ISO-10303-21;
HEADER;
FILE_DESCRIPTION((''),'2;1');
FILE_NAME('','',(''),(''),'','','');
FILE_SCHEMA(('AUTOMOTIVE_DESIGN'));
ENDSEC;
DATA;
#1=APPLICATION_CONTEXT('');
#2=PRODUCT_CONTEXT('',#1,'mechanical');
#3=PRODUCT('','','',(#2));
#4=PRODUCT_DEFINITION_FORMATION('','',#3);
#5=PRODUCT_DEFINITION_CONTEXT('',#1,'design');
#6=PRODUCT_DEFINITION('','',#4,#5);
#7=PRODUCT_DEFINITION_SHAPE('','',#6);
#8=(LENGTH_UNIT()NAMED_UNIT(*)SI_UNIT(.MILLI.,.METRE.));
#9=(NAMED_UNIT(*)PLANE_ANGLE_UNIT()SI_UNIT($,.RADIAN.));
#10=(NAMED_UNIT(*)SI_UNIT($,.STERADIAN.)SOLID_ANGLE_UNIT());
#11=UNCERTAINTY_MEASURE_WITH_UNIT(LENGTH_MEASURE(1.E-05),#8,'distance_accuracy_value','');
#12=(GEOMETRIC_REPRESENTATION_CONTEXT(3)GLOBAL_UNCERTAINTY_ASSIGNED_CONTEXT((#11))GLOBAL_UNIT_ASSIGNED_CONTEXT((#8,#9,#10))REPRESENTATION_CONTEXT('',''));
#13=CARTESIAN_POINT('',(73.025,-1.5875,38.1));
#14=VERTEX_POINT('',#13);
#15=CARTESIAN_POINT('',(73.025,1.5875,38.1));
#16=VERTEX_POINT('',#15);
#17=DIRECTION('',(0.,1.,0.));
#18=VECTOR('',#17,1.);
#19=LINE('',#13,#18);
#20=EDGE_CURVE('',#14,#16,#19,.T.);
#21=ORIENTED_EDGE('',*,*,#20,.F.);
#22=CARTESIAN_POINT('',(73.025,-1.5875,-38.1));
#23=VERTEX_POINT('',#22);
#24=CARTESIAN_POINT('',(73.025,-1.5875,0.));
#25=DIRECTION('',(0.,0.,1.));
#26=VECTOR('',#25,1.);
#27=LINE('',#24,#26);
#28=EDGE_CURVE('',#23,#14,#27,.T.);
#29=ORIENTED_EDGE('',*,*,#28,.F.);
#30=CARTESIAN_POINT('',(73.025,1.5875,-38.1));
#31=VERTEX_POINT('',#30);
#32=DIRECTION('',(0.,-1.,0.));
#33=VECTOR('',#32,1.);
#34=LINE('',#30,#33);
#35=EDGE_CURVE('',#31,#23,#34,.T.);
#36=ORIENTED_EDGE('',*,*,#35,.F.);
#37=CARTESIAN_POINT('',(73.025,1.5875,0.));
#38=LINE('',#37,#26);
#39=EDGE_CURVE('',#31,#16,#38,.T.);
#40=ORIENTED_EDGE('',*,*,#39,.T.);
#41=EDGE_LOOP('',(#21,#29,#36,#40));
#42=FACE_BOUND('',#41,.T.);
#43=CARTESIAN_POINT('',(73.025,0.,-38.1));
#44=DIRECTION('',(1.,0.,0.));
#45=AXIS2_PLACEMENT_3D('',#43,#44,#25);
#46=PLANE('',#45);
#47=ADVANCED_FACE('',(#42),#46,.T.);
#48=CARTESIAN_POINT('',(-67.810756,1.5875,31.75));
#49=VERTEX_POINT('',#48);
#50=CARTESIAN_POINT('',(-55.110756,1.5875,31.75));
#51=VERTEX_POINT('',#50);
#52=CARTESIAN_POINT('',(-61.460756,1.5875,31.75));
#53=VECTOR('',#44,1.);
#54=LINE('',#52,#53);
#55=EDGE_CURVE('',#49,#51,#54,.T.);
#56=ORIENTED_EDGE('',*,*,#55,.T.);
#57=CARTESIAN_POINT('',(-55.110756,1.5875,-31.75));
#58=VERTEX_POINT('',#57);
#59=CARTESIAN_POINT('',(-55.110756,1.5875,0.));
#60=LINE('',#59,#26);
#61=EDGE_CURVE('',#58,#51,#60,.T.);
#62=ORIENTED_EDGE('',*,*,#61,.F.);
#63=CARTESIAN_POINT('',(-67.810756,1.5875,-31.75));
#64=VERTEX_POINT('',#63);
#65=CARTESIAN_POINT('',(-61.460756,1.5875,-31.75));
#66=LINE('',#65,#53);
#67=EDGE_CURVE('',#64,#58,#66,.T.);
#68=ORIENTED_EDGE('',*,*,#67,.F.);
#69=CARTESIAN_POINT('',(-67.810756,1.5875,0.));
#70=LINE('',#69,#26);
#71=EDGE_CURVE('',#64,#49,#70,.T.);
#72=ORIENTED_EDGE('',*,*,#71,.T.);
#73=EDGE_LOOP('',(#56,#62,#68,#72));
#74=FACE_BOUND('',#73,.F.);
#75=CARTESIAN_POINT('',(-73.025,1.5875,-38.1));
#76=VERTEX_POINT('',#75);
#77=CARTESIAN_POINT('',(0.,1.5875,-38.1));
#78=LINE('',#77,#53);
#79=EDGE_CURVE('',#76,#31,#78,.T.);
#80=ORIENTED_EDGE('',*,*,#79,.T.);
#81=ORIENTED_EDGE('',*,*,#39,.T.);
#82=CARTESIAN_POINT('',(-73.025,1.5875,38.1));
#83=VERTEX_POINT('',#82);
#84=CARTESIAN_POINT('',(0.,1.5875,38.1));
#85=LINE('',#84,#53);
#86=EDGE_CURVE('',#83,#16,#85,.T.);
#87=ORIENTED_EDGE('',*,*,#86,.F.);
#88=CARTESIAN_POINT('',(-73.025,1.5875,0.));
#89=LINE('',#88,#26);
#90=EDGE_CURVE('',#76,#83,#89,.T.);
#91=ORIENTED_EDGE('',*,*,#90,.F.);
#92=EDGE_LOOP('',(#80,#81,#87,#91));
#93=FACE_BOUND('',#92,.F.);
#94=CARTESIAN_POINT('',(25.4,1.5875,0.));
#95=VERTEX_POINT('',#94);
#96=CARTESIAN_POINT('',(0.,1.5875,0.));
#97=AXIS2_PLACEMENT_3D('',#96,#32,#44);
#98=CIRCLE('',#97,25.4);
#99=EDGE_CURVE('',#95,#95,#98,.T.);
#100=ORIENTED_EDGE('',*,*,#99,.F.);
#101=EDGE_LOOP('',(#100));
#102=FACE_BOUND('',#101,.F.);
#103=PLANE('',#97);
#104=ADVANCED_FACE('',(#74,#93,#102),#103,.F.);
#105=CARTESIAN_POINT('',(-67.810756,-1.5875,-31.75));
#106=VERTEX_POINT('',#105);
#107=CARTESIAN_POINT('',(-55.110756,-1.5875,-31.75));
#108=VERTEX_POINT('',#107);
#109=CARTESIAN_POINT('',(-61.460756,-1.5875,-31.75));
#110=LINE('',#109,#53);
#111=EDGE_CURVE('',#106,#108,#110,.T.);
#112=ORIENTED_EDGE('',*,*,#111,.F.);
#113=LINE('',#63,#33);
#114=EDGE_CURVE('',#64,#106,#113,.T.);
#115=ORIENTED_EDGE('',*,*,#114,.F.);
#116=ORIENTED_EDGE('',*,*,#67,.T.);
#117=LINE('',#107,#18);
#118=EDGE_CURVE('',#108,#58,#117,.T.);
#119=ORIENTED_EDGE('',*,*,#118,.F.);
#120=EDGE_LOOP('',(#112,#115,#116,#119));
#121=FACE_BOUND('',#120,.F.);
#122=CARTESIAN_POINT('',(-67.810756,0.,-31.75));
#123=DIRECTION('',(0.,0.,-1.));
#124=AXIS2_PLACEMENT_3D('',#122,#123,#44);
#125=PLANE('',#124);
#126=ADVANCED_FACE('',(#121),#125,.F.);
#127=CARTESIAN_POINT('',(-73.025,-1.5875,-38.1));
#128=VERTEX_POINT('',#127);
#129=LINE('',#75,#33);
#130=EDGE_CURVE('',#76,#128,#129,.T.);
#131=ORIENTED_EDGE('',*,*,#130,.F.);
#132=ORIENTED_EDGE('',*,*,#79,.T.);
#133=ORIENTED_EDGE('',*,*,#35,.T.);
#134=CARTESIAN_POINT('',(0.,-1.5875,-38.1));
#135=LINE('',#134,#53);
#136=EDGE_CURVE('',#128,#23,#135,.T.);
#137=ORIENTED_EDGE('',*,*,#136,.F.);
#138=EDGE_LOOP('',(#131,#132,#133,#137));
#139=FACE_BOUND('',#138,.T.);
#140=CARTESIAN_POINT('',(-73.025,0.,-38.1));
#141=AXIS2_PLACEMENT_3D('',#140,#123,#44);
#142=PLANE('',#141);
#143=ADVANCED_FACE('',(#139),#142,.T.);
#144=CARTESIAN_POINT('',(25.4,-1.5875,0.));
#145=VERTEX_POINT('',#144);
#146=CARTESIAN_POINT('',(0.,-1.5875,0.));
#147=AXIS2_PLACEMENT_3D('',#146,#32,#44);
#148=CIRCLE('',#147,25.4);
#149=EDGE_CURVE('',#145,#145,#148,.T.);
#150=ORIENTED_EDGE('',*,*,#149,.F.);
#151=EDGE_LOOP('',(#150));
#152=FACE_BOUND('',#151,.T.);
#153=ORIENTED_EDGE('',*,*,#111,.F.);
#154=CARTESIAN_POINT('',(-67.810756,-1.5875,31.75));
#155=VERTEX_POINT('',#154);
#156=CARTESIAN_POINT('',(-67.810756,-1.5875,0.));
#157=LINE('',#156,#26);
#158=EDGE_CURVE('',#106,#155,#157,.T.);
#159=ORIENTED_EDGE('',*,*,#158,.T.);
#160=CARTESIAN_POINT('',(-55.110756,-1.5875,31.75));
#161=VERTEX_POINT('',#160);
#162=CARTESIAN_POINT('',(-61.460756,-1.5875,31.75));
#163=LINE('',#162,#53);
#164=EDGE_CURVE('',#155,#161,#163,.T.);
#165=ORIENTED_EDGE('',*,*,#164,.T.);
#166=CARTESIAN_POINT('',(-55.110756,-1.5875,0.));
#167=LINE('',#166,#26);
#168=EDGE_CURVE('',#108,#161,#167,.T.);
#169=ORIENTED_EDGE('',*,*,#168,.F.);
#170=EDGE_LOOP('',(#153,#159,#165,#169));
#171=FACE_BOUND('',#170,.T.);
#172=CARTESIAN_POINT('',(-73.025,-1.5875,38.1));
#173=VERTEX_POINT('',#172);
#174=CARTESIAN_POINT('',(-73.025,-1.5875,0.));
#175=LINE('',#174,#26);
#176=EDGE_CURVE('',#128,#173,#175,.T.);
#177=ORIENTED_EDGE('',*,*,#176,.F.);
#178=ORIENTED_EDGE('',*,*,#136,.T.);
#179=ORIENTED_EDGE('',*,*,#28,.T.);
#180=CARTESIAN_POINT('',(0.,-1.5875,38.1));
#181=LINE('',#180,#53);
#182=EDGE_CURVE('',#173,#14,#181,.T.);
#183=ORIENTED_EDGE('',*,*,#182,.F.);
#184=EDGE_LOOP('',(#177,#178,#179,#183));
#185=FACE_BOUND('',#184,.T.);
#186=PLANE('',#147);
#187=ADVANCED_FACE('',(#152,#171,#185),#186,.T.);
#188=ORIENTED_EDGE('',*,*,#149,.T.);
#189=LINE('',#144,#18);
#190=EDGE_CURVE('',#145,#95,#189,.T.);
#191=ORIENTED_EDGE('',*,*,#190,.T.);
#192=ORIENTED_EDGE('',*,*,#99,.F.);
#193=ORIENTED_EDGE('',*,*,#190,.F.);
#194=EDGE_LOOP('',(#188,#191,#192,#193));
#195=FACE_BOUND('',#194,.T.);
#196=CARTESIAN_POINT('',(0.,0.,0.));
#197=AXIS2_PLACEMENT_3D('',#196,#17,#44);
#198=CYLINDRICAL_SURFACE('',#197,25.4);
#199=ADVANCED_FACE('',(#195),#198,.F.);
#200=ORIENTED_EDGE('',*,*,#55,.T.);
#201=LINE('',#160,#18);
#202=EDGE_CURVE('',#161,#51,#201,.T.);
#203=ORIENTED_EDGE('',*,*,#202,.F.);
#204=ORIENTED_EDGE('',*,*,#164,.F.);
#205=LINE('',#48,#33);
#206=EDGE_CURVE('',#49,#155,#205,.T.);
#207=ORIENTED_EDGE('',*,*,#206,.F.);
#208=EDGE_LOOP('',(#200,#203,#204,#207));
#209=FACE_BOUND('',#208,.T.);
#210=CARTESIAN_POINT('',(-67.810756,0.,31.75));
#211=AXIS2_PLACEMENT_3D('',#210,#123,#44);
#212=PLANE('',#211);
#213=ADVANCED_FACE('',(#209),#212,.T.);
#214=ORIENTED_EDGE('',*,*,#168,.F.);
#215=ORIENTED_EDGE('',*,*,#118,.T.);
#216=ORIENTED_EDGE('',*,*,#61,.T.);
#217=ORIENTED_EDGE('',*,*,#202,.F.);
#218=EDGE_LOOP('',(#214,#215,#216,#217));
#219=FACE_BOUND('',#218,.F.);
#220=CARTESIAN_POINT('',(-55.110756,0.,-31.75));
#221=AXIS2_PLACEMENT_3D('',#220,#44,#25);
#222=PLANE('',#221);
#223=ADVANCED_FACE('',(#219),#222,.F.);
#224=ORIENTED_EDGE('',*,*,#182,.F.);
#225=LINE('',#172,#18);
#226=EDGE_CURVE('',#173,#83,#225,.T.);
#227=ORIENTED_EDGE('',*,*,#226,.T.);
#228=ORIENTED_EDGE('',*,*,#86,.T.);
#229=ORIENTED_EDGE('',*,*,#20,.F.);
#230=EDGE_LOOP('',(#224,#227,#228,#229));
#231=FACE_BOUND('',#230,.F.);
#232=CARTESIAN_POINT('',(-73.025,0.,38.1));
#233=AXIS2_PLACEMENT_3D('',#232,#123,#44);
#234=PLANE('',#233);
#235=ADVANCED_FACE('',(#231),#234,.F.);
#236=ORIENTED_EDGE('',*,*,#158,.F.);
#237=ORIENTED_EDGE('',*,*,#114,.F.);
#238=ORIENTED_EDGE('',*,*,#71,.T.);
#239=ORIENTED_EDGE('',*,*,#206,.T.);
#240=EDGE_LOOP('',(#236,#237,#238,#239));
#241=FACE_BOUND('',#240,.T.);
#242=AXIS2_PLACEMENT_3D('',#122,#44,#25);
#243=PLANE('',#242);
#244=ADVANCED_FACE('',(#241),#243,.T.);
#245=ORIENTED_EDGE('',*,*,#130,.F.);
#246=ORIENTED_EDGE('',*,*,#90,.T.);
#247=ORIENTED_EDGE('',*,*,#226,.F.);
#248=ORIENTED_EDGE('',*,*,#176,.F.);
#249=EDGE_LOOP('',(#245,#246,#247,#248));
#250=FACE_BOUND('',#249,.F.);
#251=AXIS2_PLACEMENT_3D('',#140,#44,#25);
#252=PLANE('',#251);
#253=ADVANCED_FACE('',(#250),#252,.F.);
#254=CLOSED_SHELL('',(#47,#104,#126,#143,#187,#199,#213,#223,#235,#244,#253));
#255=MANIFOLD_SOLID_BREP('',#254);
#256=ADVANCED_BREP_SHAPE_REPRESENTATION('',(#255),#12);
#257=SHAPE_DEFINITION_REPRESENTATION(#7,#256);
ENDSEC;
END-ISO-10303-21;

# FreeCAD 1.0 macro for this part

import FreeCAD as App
import Part
import Sketcher
Q = App.Units.Quantity

doc = App.newDocument("Part")
body = doc.addObject("PartDesign::Body", "Body")

# Sketch on XZ plane
sketch1 = body.newObject("Sketcher::SketchObject", "Sketch")
sketch1.AttachmentSupport = (doc.getObject("XZ_Plane"), [""])
sketch1.MapMode = "FlatFace"
sketch1.addGeometry([
    Part.LineSegment(App.Vector(-73, 38, 0), App.Vector(-73, -38, 0)),  # 0
    Part.LineSegment(App.Vector(-73, -38, 0), App.Vector(73, -38, 0)),  # 1
    Part.LineSegment(App.Vector(73, -38, 0), App.Vector(73, 38, 0)),  # 2
    Part.LineSegment(App.Vector(73, 38, 0), App.Vector(-73, 38, 0)),  # 3
    Part.LineSegment(App.Vector(-55, -32, 0), App.Vector(-68, -32, 0)),  # 4
    Part.LineSegment(App.Vector(-68, -32, 0), App.Vector(-68, 32, 0)),  # 5
    Part.LineSegment(App.Vector(-68, 32, 0), App.Vector(-55, 32, 0)),  # 6
    Part.LineSegment(App.Vector(-55, 32, 0), App.Vector(-55, -32, 0)),  # 7
    Part.Circle(App.Vector(0, 0, 0), App.Vector(0, 0, 1), 25),  # 8
], False)
sketch1.addConstraint([
    Sketcher.Constraint("Coincident", 0, 2, 1, 1),
    Sketcher.Constraint("Coincident", 1, 2, 2, 1),
    Sketcher.Constraint("Coincident", 2, 2, 3, 1),
    Sketcher.Constraint("Coincident", 3, 2, 0, 1),
    Sketcher.Constraint("Coincident", 4, 2, 5, 1),
    Sketcher.Constraint("Coincident", 5, 2, 6, 1),
    Sketcher.Constraint("Coincident", 6, 2, 7, 1),
    Sketcher.Constraint("Coincident", 7, 2, 4, 1),
    Sketcher.Constraint("Vertical", 0),
    Sketcher.Constraint("Horizontal", 1),
    Sketcher.Constraint("Vertical", 2),
    Sketcher.Constraint("Horizontal", 3),
    Sketcher.Constraint("Horizontal", 4),
    Sketcher.Constraint("Vertical", 5),
    Sketcher.Constraint("Horizontal", 6),
    Sketcher.Constraint("Vertical", 7),
    Sketcher.Constraint("Coincident", 8, 3, -1, 1),
    Sketcher.Constraint("Symmetric", 0, 2, 2, 2, -1, 1),
    Sketcher.Constraint("Diameter", 8, Q("2 in")),
    Sketcher.Constraint("DistanceY", 0, 2, 0, 1, Q("3 in")),
    Sketcher.Constraint("DistanceX", 4, 2, 4, 1, Q("0.5 in")),
    Sketcher.Constraint("DistanceY", 5, 1, 5, 2, Q("2.5 in")),
    Sketcher.Constraint("DistanceX", 1, 1, 1, 2, Q("5.75 in")),
    Sketcher.Constraint("DistanceY", 4, 2, -1, 1, Q("1.25 in")),
    Sketcher.Constraint("DistanceX", 4, 2, -1, 1, 67.810756),
])
pad1 = body.newObject("PartDesign::Pad", "Pad")
pad1.Profile = sketch1
pad1.Length = Q("0.125 in")
pad1.Midplane = True

doc.recompute()
